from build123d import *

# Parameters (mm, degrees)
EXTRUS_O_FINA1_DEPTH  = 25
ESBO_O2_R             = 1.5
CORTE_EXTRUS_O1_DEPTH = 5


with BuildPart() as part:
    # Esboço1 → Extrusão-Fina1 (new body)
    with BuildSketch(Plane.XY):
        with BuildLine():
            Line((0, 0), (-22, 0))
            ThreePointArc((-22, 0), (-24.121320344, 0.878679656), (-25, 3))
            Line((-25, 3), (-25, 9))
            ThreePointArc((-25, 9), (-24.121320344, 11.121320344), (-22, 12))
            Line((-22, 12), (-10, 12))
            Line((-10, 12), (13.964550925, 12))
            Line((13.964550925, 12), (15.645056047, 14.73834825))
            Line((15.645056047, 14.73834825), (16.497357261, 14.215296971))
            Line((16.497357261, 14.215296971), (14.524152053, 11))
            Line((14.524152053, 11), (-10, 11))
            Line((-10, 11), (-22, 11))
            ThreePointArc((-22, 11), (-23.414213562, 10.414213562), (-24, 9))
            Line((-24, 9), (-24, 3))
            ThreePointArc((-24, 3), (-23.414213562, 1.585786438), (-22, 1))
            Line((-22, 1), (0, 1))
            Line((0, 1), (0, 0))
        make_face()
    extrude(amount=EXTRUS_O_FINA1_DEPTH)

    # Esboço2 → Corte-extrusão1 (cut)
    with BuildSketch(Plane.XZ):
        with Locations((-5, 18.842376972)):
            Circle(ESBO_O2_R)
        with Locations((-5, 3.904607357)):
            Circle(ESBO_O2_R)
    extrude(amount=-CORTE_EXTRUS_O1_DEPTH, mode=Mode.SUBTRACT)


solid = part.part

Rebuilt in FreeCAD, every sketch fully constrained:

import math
import FreeCAD as App
import Part
import Sketcher

V = App.Vector
Q = App.Units.Quantity

doc = App.newDocument("Part")
params = doc.addObject("Spreadsheet::Sheet", "Params")
for row, (alias, value) in enumerate([
    ("sketch1_radius", "2 mm"),
    ("sketch1_radius2", "3 mm"),
    ("sketch1_width", "22 mm"),
    ("sketch1_height", "6 mm"),
    ("sketch1_length", "1 mm"),
    ("pad1_length", "25 mm"),
    ("sketch2_diameter", "3 mm"),
    ("pocket1_length", "5 mm"),
], start=1):
    params.set(f"A{row}", alias)
    params.set(f"B{row}", "=" + value)
    params.setAlias(f"B{row}", alias)

body = doc.addObject("PartDesign::Body", "Body")

sketch1 = body.newObject("Sketcher::SketchObject", "Sketch")
sketch1.AttachmentSupport = (doc.getObject("XY_Plane"), [""])
sketch1.MapMode = "FlatFace"
sketch1.addGeometry([
    Part.LineSegment(V(-22, 0, 0), V(0, 0, 0)),
    Part.LineSegment(V(0, 0, 0), V(0, 1, 0)),
    Part.LineSegment(V(0, 1, 0), V(-22, 1, 0)),
    Part.ArcOfCircle(Part.Circle(V(-22, 3, 0), V(0, 0, 1), 2), math.radians(-180), math.radians(-90)),
    Part.LineSegment(V(-24, 3, 0), V(-24, 9, 0)),
    Part.ArcOfCircle(Part.Circle(V(-22, 9, 0), V(0, 0, 1), 2), math.radians(90), math.radians(180)),
    Part.LineSegment(V(-22, 11, 0), V(14.5, 11, 0)),
    Part.LineSegment(V(14.5, 11, 0), V(16.5, 14.2, 0)),
    Part.LineSegment(V(16.5, 14.2, 0), V(15.6, 14.7, 0)),
    Part.LineSegment(V(15.6, 14.7, 0), V(14, 12, 0)),
    Part.LineSegment(V(14, 12, 0), V(-22, 12, 0)),
    Part.ArcOfCircle(Part.Circle(V(-22, 9, 0), V(0, 0, 1), 3), math.radians(90), math.radians(180)),
    Part.LineSegment(V(-25, 9, 0), V(-25, 3, 0)),
    Part.ArcOfCircle(Part.Circle(V(-22, 3, 0), V(0, 0, 1), 3), math.radians(180), math.radians(270)),
], False)
sketch1.addConstraint([
    Sketcher.Constraint("Coincident", 0, 2, 1, 1),
    Sketcher.Constraint("Coincident", 1, 2, 2, 1),
    Sketcher.Constraint("Tangent", 2, 2, 3, 2),
    Sketcher.Constraint("Tangent", 3, 1, 4, 1),
    Sketcher.Constraint("Tangent", 4, 2, 5, 2),
    Sketcher.Constraint("Tangent", 5, 1, 6, 1),
    Sketcher.Constraint("Coincident", 6, 2, 7, 1),
    Sketcher.Constraint("Coincident", 7, 2, 8, 1),
    Sketcher.Constraint("Coincident", 8, 2, 9, 1),
    Sketcher.Constraint("Coincident", 9, 2, 10, 1),
    Sketcher.Constraint("Tangent", 10, 2, 11, 1),
    Sketcher.Constraint("Tangent", 11, 2, 12, 1),
    Sketcher.Constraint("Tangent", 12, 2, 13, 1),
    Sketcher.Constraint("Tangent", 13, 2, 0, 1),
    Sketcher.Constraint("Horizontal", 0),
    Sketcher.Constraint("Vertical", 1),
    Sketcher.Constraint("Horizontal", 2),
    Sketcher.Constraint("Vertical", 4),
    Sketcher.Constraint("Horizontal", 6),
    Sketcher.Constraint("Horizontal", 10),
    Sketcher.Constraint("Vertical", 12),
    Sketcher.Constraint("Coincident", 0, 2, -1, 1),
    Sketcher.Constraint("Coincident", 11, 3, 5, 3),
    Sketcher.Constraint("Coincident", 13, 3, 3, 3),
    Sketcher.Constraint("Equal", 3, 5),
    Sketcher.Constraint("Perpendicular", 7, 8),
    Sketcher.Constraint("Perpendicular", 8, 9),
    Sketcher.Constraint("Radius", 3, Q("2 mm")),
    Sketcher.Constraint("Radius", 11, Q("3 mm")),
    Sketcher.Constraint("DistanceX", 0, 1, 0, 2, Q("22 mm")),
    Sketcher.Constraint("DistanceY", 4, 1, 4, 2, Q("6 mm")),
    Sketcher.Constraint("Distance", 8, Q("1 mm")),
    Sketcher.Constraint("DistanceX", 10, 2, 10, 1, Q("35.964551 mm")),
    Sketcher.Constraint("DistanceX", 8, 2, 7, 2, Q("0.852301 mm")),
    Sketcher.Constraint("Distance", 7, Q("3.772489 mm")),
])
sketch1.setExpression("Constraints[27]", "Params.sketch1_radius")
sketch1.setExpression("Constraints[28]", "Params.sketch1_radius2")
sketch1.setExpression("Constraints[29]", "Params.sketch1_width")
sketch1.setExpression("Constraints[30]", "Params.sketch1_height")
sketch1.setExpression("Constraints[31]", "Params.sketch1_length")
pad1 = body.newObject("PartDesign::Pad", "Pad")
pad1.Profile = sketch1
pad1.setExpression("Length", "Params.pad1_length")

sketch2 = body.newObject("Sketcher::SketchObject", "Sketch001")
sketch2.AttachmentSupport = (doc.getObject("XZ_Plane"), [""])
sketch2.MapMode = "FlatFace"
sketch2.addGeometry([
    Part.Circle(V(-5, 18.8, 0), V(0, 0, 1), 1.5),
    Part.Circle(V(-5, 3.9, 0), V(0, 0, 1), 1.5),
], False)
sketch2.addConstraint([
    Sketcher.Constraint("Equal", 0, 1),
    Sketcher.Constraint("Vertical", 0, 3, 1, 3),
    Sketcher.Constraint("Diameter", 0, Q("3 mm")),
    Sketcher.Constraint("DistanceX", 0, 3, -1, 1, Q("5 mm")),
    Sketcher.Constraint("DistanceY", 1, 3, 0, 3, Q("14.93777 mm")),
    Sketcher.Constraint("DistanceY", -1, 1, 0, 3, Q("18.842377 mm")),
])
sketch2.setExpression("Constraints[2]", "Params.sketch2_diameter")
pocket1 = body.newObject("PartDesign::Pocket", "Pocket")
pocket1.Profile = sketch2
pocket1.setExpression("Length", "Params.pocket1_length")

doc.recompute()
